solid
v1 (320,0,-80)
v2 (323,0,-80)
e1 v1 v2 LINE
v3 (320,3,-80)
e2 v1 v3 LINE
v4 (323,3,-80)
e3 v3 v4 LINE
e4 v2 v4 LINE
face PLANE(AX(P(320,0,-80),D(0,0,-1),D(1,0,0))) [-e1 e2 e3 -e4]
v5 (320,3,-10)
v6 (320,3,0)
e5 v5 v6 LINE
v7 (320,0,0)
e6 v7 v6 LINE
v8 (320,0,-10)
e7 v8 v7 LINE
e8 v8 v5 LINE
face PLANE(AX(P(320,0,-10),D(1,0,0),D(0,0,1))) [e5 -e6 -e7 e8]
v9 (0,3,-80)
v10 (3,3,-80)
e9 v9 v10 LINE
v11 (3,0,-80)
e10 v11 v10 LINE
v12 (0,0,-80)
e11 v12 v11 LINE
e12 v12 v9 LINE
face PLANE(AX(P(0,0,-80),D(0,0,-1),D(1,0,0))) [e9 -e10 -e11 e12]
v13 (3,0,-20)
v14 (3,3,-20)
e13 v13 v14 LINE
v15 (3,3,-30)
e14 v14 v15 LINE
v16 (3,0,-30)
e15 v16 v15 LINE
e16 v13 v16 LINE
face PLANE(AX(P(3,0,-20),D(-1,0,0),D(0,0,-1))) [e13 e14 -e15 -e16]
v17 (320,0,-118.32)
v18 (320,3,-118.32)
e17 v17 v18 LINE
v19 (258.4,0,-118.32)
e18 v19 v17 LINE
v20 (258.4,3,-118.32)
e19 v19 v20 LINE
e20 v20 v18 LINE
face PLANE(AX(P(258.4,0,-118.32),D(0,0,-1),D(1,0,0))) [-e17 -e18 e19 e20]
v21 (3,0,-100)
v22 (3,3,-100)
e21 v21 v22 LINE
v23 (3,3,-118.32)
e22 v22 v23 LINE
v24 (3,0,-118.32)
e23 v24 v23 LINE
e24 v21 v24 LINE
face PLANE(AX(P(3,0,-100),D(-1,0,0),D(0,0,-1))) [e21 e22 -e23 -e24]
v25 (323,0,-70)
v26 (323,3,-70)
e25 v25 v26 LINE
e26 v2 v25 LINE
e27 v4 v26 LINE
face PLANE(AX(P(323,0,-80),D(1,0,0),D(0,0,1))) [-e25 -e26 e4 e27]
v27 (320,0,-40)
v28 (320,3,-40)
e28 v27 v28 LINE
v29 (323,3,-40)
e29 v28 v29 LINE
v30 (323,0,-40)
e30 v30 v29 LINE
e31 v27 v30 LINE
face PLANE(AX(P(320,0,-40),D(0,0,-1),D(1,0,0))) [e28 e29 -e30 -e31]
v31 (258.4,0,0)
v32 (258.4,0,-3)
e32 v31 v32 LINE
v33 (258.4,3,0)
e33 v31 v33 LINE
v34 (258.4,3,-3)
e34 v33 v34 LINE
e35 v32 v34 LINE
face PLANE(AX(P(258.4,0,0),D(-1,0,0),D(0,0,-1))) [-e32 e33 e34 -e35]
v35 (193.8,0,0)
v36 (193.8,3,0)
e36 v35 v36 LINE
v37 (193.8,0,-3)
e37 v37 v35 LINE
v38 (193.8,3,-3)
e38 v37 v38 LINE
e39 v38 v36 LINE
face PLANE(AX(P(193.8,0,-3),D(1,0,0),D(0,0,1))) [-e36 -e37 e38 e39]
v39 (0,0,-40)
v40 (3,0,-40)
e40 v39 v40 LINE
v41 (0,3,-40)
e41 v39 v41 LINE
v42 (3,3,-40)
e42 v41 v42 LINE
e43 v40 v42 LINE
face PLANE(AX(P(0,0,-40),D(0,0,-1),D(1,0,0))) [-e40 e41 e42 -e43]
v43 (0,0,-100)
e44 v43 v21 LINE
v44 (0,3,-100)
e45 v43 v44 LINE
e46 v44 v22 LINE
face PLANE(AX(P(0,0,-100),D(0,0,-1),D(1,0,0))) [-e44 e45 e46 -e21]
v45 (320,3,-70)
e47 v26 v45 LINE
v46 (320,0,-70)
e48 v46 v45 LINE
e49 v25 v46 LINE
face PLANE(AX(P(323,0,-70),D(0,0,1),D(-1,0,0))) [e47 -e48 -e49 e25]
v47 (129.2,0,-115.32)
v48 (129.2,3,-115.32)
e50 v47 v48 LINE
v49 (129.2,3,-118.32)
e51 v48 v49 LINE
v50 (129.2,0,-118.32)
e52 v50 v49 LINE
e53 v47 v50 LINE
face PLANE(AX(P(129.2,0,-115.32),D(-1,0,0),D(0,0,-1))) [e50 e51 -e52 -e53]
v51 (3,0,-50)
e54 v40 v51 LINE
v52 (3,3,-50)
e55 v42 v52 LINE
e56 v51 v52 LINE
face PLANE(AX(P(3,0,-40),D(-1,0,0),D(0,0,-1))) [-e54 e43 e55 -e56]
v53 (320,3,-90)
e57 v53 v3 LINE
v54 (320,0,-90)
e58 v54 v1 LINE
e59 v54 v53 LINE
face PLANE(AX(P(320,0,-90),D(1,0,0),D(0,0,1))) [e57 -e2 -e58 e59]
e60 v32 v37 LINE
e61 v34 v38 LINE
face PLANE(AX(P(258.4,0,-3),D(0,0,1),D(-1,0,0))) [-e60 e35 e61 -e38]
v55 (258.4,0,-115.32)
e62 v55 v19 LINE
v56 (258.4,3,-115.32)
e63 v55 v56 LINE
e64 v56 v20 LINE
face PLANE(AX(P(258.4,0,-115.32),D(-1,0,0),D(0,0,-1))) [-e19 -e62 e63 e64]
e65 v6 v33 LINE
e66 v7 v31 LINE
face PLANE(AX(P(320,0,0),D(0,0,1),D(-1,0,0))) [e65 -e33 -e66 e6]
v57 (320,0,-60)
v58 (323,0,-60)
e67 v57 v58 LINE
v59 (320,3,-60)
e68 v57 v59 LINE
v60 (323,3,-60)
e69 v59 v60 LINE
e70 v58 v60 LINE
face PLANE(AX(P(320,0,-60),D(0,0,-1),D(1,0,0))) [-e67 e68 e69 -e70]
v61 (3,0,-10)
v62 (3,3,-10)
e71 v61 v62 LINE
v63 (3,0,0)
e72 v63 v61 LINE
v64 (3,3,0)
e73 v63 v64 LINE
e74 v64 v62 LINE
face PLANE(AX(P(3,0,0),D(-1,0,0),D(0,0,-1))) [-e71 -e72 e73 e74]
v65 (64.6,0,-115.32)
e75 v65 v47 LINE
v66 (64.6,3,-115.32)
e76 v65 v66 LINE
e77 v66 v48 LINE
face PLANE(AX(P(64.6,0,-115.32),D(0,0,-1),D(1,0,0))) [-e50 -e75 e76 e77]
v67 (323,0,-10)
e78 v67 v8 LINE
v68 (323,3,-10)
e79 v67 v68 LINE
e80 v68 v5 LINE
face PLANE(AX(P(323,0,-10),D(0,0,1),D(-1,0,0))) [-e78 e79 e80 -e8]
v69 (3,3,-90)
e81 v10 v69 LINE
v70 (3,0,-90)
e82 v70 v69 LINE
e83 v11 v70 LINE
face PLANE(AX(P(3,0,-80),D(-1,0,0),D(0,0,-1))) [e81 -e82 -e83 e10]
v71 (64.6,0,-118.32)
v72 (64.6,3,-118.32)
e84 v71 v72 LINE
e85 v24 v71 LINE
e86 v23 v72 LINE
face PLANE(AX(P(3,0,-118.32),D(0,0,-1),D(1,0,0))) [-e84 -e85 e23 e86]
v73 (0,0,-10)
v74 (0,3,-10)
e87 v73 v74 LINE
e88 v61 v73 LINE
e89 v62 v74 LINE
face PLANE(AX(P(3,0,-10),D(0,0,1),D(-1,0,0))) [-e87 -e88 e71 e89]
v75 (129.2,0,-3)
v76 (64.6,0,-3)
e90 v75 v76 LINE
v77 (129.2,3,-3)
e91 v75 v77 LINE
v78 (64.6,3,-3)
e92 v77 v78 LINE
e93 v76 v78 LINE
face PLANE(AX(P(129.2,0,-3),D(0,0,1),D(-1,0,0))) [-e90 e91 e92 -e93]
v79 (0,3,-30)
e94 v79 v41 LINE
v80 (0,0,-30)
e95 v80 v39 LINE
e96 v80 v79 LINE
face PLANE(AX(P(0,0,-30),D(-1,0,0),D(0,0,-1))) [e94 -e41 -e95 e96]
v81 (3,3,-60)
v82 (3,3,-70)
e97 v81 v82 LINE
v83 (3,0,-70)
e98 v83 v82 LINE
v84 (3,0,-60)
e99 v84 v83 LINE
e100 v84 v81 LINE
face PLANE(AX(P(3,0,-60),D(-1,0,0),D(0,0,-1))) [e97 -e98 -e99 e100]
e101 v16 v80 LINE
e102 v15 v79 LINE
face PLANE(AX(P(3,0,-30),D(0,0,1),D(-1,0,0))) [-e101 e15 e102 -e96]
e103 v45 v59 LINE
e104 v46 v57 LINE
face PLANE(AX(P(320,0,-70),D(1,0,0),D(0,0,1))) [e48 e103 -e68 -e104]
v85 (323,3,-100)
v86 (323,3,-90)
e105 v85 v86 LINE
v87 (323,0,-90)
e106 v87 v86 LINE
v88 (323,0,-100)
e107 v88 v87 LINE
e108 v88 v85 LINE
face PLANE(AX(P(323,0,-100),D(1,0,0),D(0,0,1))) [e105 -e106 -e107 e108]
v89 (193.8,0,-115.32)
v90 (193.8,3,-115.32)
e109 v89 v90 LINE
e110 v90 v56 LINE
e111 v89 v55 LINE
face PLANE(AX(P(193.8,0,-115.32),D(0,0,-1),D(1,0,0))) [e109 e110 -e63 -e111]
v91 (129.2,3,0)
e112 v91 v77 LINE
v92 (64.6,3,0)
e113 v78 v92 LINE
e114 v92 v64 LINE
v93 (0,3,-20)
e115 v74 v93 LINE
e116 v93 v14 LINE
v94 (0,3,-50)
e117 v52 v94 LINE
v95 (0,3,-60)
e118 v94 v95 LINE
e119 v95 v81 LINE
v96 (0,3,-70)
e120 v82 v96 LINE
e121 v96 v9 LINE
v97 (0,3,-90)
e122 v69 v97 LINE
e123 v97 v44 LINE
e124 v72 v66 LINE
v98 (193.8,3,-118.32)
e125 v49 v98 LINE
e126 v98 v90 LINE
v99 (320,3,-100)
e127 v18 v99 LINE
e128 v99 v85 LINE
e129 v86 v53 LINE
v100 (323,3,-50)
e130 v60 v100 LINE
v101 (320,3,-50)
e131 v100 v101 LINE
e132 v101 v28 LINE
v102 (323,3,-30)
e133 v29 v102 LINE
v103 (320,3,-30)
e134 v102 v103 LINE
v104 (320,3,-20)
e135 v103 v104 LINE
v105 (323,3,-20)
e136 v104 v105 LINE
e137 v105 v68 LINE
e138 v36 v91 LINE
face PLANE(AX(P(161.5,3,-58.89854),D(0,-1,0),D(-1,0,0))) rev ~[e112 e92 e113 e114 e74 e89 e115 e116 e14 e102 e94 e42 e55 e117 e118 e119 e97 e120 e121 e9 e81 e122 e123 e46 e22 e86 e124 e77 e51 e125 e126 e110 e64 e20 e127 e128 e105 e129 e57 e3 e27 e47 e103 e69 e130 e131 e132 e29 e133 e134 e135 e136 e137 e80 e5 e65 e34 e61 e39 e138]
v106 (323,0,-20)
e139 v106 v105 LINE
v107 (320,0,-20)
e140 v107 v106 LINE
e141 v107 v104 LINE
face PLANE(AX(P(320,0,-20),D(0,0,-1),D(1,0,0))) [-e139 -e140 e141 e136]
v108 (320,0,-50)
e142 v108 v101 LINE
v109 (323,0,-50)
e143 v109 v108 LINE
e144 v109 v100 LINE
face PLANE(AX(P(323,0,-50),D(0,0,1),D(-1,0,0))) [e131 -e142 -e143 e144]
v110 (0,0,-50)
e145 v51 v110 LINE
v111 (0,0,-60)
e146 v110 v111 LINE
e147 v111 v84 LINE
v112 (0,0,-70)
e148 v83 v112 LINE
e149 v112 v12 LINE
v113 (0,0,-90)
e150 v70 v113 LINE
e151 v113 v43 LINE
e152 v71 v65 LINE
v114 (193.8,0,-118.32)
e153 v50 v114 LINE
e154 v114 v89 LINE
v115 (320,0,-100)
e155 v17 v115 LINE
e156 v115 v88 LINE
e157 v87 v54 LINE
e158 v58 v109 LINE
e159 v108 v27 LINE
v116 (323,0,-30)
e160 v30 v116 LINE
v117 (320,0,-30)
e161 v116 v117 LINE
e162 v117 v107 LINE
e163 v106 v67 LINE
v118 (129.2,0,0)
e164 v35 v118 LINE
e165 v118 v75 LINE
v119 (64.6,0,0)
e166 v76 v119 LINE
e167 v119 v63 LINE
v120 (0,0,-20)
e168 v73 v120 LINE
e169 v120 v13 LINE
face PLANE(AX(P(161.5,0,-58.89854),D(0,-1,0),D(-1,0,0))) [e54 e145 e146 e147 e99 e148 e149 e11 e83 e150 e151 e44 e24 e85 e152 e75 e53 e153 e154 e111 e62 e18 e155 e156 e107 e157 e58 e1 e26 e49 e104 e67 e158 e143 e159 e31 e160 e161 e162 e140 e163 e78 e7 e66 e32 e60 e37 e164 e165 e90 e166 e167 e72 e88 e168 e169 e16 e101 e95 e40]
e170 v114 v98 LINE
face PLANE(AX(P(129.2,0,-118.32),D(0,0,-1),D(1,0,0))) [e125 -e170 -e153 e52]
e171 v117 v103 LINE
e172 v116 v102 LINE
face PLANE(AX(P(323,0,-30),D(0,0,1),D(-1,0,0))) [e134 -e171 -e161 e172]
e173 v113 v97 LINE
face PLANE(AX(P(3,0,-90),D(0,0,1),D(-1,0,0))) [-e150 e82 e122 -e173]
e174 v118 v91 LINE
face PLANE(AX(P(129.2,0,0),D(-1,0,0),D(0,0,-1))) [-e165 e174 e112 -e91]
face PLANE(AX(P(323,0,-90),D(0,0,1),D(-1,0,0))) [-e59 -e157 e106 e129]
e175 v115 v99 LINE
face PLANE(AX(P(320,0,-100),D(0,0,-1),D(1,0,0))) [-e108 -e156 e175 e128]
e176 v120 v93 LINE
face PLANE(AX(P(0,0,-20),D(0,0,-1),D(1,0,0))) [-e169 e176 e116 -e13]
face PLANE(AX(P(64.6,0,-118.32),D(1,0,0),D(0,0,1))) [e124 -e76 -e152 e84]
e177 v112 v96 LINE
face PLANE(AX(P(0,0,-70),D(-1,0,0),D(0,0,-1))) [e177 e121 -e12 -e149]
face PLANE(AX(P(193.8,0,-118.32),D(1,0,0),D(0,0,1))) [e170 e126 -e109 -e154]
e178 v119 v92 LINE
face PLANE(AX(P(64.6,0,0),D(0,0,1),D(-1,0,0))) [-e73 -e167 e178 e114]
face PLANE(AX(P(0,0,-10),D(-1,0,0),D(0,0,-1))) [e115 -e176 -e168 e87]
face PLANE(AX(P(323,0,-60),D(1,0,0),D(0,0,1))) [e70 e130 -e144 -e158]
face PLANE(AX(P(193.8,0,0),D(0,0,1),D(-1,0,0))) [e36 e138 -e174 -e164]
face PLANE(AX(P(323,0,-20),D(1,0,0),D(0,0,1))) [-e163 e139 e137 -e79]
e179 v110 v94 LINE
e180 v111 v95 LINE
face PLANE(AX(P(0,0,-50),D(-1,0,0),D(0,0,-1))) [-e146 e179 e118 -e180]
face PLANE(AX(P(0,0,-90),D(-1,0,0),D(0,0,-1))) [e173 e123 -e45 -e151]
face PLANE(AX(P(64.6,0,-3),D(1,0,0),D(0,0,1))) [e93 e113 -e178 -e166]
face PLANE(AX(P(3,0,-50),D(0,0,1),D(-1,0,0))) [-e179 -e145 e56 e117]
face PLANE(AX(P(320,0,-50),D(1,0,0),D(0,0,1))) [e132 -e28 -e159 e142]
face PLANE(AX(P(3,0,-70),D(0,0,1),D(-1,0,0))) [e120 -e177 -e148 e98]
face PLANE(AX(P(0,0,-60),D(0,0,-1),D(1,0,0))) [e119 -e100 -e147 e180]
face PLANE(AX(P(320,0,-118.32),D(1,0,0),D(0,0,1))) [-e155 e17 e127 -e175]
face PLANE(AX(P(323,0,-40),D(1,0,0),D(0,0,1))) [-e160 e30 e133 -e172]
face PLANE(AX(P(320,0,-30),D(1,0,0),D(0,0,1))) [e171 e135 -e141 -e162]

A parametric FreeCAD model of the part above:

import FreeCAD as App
import Part
import Sketcher
Q = App.Units.Quantity


def add_polygon(sketch, points):
    """Adds a closed chain of lines whose ends are joined by coincident constraints."""
    first, n = sketch.GeometryCount, len(points)
    for a, b in zip(points, points[1:] + points[:1]):
        sketch.addGeometry(Part.LineSegment(App.Vector(*a, 0), App.Vector(*b, 0)), False)
    for i in range(n):
        sketch.addConstraint(Sketcher.Constraint("Coincident", first + i, 2, first + (i + 1) % n, 1))

doc = App.newDocument("Part")
params = doc.addObject("Spreadsheet::Sheet", "Params")
for row, (alias, value) in enumerate([
    ("sketch1_width", "3 mm"),
    ("sketch1_height", "10 mm"),
    ("sketch1_width2", "61.6 mm"),
    ("sketch1_width3", "64.6 mm"),
    ("sketch1_height2", "18.32 mm"),
    ("pad1_length", "3 mm"),
], start=1):
    params.set(f"A{row}", alias)
    params.set(f"B{row}", "=" + value)
    params.setAlias(f"B{row}", alias)

body = doc.addObject("PartDesign::Body", "Body")

# Sketch on XZ plane
sketch1 = body.newObject("Sketcher::SketchObject", "Sketch")
sketch1.AttachmentSupport = (doc.getObject("XZ_Plane"), [""])
sketch1.MapMode = "FlatFace"
add_polygon(sketch1, [(3, -10), (3, 0), (64.6, 0), (64.6, -3), (129.2, -3), (129.2, 0), (193.8, 0), (193.8, -3), (258.4, -3), (258.4, 0), (320, 0), (320, -10), (323, -10), (323, -20), (320, -20), (320, -30), (323, -30), (323, -40), (320, -40), (320, -50), (323, -50), (323, -60), (320, -60), (320, -70), (323, -70), (323, -80), (320, -80), (320, -90), (323, -90), (323, -100), (320, -100), (320, -118.32), (258.4, -118.32), (258.4, -115.32), (193.8, -115.32), (193.8, -118.32), (129.2, -118.32), (129.2, -115.32), (64.6, -115.32), (64.6, -118.32), (3, -118.32), (3, -100), (0, -100), (0, -90), (3, -90), (3, -80), (0, -80), (0, -70), (3, -70), (3, -60), (0, -60), (0, -50), (3, -50), (3, -40), (0, -40), (0, -30), (3, -30), (3, -20), (0, -20), (0, -10)])  # lines 0-59
sketch1.addConstraint([
    Sketcher.Constraint("Vertical", 0),
    Sketcher.Constraint("Horizontal", 1),
    Sketcher.Constraint("Vertical", 2),
    Sketcher.Constraint("Horizontal", 3),
    Sketcher.Constraint("Vertical", 4),
    Sketcher.Constraint("Horizontal", 5),
    Sketcher.Constraint("Vertical", 6),
    Sketcher.Constraint("Horizontal", 7),
    Sketcher.Constraint("Vertical", 8),
    Sketcher.Constraint("Horizontal", 9),
    Sketcher.Constraint("Vertical", 10),
    Sketcher.Constraint("Horizontal", 11),
    Sketcher.Constraint("Vertical", 12),
    Sketcher.Constraint("Horizontal", 13),
    Sketcher.Constraint("Vertical", 14),
    Sketcher.Constraint("Horizontal", 15),
    Sketcher.Constraint("Vertical", 16),
    Sketcher.Constraint("Horizontal", 17),
    Sketcher.Constraint("Vertical", 18),
    Sketcher.Constraint("Horizontal", 19),
    Sketcher.Constraint("Vertical", 20),
    Sketcher.Constraint("Horizontal", 21),
    Sketcher.Constraint("Vertical", 22),
    Sketcher.Constraint("Horizontal", 23),
    Sketcher.Constraint("Vertical", 24),
    Sketcher.Constraint("Horizontal", 25),
    Sketcher.Constraint("Vertical", 26),
    Sketcher.Constraint("Horizontal", 27),
    Sketcher.Constraint("Vertical", 28),
    Sketcher.Constraint("Horizontal", 29),
    Sketcher.Constraint("Vertical", 30),
    Sketcher.Constraint("Horizontal", 31),
    Sketcher.Constraint("Vertical", 32),
    Sketcher.Constraint("Horizontal", 33),
    Sketcher.Constraint("Vertical", 34),
    Sketcher.Constraint("Horizontal", 35),
    Sketcher.Constraint("Vertical", 36),
    Sketcher.Constraint("Horizontal", 37),
    Sketcher.Constraint("Vertical", 38),
    Sketcher.Constraint("Horizontal", 39),
    Sketcher.Constraint("Vertical", 40),
    Sketcher.Constraint("Horizontal", 41),
    Sketcher.Constraint("Vertical", 42),
    Sketcher.Constraint("Horizontal", 43),
    Sketcher.Constraint("Vertical", 44),
    Sketcher.Constraint("Horizontal", 45),
    Sketcher.Constraint("Vertical", 46),
    Sketcher.Constraint("Horizontal", 47),
    Sketcher.Constraint("Vertical", 48),
    Sketcher.Constraint("Horizontal", 49),
    Sketcher.Constraint("Vertical", 50),
    Sketcher.Constraint("Horizontal", 51),
    Sketcher.Constraint("Vertical", 52),
    Sketcher.Constraint("Horizontal", 53),
    Sketcher.Constraint("Vertical", 54),
    Sketcher.Constraint("Horizontal", 55),
    Sketcher.Constraint("Vertical", 56),
    Sketcher.Constraint("Horizontal", 57),
    Sketcher.Constraint("Vertical", 58),
    Sketcher.Constraint("Horizontal", 59),
    Sketcher.Constraint("PointOnObject", 0, 2, -1),
    Sketcher.Constraint("PointOnObject", 4, 2, -1),
    Sketcher.Constraint("PointOnObject", 8, 2, -1),
    Sketcher.Constraint("PointOnObject", 41, 2, -2),
    Sketcher.Constraint("PointOnObject", 45, 2, -2),
    Sketcher.Constraint("PointOnObject", 49, 2, -2),
    Sketcher.Constraint("PointOnObject", 53, 2, -2),
    Sketcher.Constraint("PointOnObject", 57, 2, -2),
    Sketcher.Constraint("Horizontal", 3, 2, 6, 2),
    Sketcher.Constraint("Horizontal", 31, 2, 34, 2),
    Sketcher.Constraint("Horizontal", 33, 2, 36, 2),
    Sketcher.Constraint("Horizontal", 35, 2, 38, 2),
    Sketcher.Constraint("Horizontal", 29, 2, 40, 2),
    Sketcher.Constraint("Horizontal", 27, 2, 42, 2),
    Sketcher.Constraint("Horizontal", 25, 2, 44, 2),
    Sketcher.Constraint("Horizontal", 23, 2, 46, 2),
    Sketcher.Constraint("Horizontal", 21, 2, 48, 2),
    Sketcher.Constraint("Horizontal", 19, 2, 50, 2),
    Sketcher.Constraint("Horizontal", 17, 2, 52, 2),
    Sketcher.Constraint("Horizontal", 15, 2, 54, 2),
    Sketcher.Constraint("Horizontal", 13, 2, 56, 2),
    Sketcher.Constraint("Horizontal", 11, 2, 58, 2),
    Sketcher.Constraint("Vertical", 10, 2, 13, 2),
    Sketcher.Constraint("Vertical", 12, 2, 15, 2),
    Sketcher.Constraint("Vertical", 14, 2, 17, 2),
    Sketcher.Constraint("Vertical", 16, 2, 19, 2),
    Sketcher.Constraint("Vertical", 18, 2, 21, 2),
    Sketcher.Constraint("Vertical", 20, 2, 23, 2),
    Sketcher.Constraint("Vertical", 22, 2, 25, 2),
    Sketcher.Constraint("Vertical", 24, 2, 27, 2),
    Sketcher.Constraint("Vertical", 26, 2, 29, 2),
    Sketcher.Constraint("Vertical", 8, 2, 31, 2),
    Sketcher.Constraint("Vertical", 6, 2, 33, 2),
    Sketcher.Constraint("Vertical", 4, 2, 35, 2),
    Sketcher.Constraint("Vertical", 2, 2, 37, 2),
    Sketcher.Constraint("Vertical", 0, 2, 39, 2),
    Sketcher.Constraint("Vertical", 40, 2, 43, 2),
    Sketcher.Constraint("Vertical", 44, 2, 47, 2),
    Sketcher.Constraint("Vertical", 48, 2, 51, 2),
    Sketcher.Constraint("Vertical", 52, 2, 55, 2),
    Sketcher.Constraint("Equal", 3, 5),
    Sketcher.Constraint("Equal", 5, 7),
    Sketcher.Constraint("Equal", 1, 9),
    Sketcher.Constraint("Equal", 29, 41),
    Sketcher.Constraint("Equal", 59, 2),
    Sketcher.Constraint("Equal", 10, 12),
    Sketcher.Constraint("Equal", 12, 14),
    Sketcher.Constraint("Equal", 14, 16),
    Sketcher.Constraint("Equal", 16, 18),
    Sketcher.Constraint("Equal", 18, 20),
    Sketcher.Constraint("Equal", 20, 22),
    Sketcher.Constraint("Equal", 22, 24),
    Sketcher.Constraint("Equal", 24, 26),
    Sketcher.Constraint("Equal", 26, 28),
    Sketcher.Constraint("Equal", 8, 32),
    Sketcher.Constraint("DistanceX", 11, 1, 11, 2, Q("3 mm")),
    Sketcher.Constraint("DistanceY", 0, 1, 0, 2, Q("10 mm")),
    Sketcher.Constraint("DistanceX", 1, 1, 1, 2, Q("61.6 mm")),
    Sketcher.Constraint("DistanceX", 3, 1, 3, 2, Q("64.6 mm")),
    Sketcher.Constraint("DistanceY", 30, 2, 30, 1, Q("18.32 mm")),
])
sketch1.setExpression("Constraints[175]", "Params.sketch1_width")
sketch1.setExpression("Constraints[176]", "Params.sketch1_height")
sketch1.setExpression("Constraints[177]", "Params.sketch1_width2")
sketch1.setExpression("Constraints[178]", "Params.sketch1_width3")
sketch1.setExpression("Constraints[179]", "Params.sketch1_height2")
pad1 = body.newObject("PartDesign::Pad", "Pad")
pad1.Profile = sketch1
pad1.setExpression("Length", "Params.pad1_length")
pad1.Reversed = True

doc.recompute()
